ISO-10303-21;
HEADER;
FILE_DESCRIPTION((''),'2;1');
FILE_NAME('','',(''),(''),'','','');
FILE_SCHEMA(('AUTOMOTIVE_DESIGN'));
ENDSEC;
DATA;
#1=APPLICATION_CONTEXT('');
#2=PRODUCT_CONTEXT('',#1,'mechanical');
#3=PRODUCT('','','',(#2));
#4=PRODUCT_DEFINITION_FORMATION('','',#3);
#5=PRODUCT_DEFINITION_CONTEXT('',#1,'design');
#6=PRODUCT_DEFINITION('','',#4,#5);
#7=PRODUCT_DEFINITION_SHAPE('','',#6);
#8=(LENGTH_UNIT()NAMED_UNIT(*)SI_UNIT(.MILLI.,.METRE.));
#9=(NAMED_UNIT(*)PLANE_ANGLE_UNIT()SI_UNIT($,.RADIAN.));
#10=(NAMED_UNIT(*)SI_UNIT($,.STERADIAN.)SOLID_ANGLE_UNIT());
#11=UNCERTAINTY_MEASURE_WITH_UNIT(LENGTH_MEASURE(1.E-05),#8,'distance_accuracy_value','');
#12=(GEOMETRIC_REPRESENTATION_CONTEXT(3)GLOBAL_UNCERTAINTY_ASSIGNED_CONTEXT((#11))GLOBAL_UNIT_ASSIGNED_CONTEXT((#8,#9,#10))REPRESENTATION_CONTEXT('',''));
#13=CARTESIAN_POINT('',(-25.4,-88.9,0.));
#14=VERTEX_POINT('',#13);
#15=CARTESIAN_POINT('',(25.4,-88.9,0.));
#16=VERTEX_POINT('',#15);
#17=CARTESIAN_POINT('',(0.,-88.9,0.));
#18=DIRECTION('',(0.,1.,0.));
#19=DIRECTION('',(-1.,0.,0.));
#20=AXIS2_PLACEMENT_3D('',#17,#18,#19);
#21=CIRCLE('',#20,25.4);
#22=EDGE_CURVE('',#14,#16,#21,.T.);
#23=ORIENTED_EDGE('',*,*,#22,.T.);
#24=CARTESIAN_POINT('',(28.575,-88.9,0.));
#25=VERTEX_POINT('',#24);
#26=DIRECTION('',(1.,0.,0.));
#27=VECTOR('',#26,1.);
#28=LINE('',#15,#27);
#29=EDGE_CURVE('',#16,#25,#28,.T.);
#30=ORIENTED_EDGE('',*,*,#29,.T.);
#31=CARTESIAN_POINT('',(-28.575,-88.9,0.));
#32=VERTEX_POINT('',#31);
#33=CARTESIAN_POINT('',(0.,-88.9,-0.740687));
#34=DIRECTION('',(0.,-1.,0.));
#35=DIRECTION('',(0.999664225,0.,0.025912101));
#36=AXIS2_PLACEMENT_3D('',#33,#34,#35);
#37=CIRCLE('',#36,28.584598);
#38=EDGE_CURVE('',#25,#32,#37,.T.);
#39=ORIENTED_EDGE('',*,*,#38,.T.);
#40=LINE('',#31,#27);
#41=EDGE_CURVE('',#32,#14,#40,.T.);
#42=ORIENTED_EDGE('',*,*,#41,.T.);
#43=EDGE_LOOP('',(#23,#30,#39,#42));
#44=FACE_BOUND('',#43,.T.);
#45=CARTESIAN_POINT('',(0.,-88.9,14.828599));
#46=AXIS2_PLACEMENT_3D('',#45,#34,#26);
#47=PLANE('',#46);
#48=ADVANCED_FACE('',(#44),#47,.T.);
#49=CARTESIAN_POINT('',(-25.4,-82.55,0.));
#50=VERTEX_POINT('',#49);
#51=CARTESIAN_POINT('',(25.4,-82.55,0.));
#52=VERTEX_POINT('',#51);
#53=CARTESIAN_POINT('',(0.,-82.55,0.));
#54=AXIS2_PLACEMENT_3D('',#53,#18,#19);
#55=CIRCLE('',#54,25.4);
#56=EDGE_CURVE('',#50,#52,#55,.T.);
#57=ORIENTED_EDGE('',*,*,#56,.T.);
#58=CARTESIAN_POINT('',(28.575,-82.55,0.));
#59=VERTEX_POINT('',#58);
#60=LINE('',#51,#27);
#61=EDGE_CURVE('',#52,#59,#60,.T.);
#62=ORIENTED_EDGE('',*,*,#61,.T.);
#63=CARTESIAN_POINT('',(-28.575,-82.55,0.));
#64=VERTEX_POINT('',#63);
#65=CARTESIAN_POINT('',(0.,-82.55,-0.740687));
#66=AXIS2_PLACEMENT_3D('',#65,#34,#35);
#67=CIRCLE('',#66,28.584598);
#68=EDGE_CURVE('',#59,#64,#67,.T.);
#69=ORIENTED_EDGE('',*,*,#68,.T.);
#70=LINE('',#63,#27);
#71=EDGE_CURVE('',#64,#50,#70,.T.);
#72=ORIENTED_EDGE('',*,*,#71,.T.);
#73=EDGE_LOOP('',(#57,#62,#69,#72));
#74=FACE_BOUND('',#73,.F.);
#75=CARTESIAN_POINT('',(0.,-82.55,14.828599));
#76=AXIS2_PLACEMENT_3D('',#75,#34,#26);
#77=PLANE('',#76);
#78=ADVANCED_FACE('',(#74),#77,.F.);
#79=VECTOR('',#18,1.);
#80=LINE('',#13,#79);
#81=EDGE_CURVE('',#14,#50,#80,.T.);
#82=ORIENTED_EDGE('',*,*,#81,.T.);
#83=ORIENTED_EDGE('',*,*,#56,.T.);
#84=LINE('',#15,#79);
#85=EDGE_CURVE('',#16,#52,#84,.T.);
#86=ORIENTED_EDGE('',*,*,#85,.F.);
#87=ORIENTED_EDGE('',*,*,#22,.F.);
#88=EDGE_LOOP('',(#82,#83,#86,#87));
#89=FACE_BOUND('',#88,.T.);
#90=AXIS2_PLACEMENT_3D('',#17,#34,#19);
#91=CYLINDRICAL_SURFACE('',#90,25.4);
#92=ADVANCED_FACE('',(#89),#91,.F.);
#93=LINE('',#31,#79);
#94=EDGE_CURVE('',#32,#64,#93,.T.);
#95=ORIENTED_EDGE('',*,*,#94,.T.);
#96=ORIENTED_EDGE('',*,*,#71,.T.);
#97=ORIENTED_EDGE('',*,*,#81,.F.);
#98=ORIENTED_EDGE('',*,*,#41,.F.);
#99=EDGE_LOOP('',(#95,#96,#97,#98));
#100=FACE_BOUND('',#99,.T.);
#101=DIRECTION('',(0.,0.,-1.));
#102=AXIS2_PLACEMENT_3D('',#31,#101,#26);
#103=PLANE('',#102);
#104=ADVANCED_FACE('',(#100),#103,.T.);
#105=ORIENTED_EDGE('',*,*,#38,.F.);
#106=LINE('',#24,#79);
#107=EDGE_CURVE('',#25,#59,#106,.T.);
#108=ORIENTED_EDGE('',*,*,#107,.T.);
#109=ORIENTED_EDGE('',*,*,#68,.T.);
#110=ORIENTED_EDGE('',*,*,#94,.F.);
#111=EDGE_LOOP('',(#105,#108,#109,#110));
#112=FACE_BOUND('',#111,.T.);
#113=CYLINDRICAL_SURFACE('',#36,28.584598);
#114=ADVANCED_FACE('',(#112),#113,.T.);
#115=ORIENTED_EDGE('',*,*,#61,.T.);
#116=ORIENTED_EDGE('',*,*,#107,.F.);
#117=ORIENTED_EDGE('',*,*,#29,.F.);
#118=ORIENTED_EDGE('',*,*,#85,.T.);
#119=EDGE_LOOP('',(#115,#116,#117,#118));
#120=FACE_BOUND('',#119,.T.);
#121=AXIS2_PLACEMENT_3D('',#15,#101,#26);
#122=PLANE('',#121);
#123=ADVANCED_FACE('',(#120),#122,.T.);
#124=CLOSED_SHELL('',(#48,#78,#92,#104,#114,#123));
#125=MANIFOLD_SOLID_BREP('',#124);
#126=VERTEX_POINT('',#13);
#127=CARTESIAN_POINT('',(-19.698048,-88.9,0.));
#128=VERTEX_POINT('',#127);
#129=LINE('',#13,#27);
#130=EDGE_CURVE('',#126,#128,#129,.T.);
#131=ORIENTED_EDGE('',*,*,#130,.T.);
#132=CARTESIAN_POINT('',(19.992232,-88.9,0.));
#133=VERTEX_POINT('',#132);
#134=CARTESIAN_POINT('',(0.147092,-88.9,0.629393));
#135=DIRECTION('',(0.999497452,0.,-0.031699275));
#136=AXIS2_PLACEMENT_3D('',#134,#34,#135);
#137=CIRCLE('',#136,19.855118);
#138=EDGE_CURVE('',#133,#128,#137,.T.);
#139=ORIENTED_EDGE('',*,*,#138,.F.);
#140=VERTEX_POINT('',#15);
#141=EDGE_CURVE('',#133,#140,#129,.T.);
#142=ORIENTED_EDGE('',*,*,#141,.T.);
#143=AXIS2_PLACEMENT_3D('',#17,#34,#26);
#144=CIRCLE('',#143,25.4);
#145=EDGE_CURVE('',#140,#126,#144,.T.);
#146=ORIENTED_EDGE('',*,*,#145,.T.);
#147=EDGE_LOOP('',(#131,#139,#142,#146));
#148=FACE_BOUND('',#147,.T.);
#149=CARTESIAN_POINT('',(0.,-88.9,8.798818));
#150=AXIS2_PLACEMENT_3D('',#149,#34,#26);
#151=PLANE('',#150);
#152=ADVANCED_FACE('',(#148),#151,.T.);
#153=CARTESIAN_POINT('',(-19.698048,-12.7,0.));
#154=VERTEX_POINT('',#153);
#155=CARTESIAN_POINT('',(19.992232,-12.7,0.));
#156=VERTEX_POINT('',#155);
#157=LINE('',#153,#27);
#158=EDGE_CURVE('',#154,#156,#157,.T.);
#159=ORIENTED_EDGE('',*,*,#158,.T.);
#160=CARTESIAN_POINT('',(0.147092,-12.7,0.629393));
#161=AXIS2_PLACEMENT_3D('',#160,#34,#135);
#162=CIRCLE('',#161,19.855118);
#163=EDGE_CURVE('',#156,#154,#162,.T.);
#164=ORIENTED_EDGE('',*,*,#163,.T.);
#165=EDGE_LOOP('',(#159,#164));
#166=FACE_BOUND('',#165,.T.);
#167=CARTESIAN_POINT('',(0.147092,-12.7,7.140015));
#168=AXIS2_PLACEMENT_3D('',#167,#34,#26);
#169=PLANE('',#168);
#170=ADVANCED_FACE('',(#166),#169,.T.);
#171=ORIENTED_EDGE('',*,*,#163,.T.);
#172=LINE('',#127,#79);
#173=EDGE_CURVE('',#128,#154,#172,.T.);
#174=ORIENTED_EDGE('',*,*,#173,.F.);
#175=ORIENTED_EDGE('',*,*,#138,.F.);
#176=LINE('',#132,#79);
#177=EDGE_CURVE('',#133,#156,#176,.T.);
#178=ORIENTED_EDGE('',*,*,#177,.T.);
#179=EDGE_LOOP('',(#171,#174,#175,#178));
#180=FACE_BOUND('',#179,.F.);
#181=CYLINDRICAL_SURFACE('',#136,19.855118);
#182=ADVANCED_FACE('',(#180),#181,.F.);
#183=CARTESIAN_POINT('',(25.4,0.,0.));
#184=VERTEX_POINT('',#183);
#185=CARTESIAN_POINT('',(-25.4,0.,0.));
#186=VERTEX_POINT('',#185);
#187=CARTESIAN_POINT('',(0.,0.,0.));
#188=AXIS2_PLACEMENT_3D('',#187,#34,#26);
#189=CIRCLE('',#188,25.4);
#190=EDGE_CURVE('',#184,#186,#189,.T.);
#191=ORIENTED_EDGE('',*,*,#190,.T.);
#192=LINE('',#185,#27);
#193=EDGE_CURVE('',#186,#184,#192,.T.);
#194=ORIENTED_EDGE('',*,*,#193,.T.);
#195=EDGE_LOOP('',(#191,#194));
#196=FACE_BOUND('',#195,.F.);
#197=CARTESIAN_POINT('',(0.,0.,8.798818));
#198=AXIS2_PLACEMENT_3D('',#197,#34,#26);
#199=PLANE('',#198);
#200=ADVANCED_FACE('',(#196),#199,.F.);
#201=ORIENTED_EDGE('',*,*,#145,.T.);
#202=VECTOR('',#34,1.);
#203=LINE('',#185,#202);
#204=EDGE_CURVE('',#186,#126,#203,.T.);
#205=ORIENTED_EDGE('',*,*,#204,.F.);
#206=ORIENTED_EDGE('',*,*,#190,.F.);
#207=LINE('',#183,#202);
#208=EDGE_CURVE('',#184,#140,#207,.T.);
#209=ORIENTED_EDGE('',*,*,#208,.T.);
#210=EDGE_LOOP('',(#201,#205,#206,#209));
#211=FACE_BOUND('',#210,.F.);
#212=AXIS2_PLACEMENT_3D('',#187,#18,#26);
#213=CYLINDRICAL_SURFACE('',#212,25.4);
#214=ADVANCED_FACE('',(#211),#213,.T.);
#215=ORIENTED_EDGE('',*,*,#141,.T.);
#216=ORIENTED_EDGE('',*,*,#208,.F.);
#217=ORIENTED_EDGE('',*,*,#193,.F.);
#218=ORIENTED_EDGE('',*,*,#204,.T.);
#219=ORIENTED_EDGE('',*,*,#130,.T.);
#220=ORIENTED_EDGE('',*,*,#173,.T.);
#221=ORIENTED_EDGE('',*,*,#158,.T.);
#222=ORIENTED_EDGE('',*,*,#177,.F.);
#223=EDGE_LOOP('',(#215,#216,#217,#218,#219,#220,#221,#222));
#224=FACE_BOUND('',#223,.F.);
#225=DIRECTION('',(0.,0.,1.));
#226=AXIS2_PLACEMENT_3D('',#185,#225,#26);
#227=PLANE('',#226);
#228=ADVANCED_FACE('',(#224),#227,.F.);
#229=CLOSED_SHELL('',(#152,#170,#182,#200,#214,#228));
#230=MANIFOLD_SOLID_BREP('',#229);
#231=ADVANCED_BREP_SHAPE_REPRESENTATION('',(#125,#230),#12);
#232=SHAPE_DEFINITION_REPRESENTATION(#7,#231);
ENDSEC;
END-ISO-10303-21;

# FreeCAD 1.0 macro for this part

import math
import FreeCAD as App
import Part
import Sketcher
from FreeCAD import Vector
Q = App.Units.Quantity

doc = App.newDocument("Part")
body = doc.addObject("PartDesign::Body", "Body")

# Sketch on XZ plane
sketch1 = doc.addObject("Sketcher::SketchObject", "Sketch")
body.addObject(sketch1)
sketch1.AttachmentSupport = (doc.XZ_Plane, [""])
sketch1.MapMode = "FlatFace"
sketch1.addGeometry([
    Part.LineSegment(Vector(-25, 0, 0), Vector(25, 0, 0)),
    Part.ArcOfCircle(Part.Circle(Vector(0, 0, 0), Vector(0, 0, 1), 25), math.radians(0), math.radians(180)),
], False)
sketch1.addConstraint([
    Sketcher.Constraint("Coincident", 0, 1, 1, 2),
    Sketcher.Constraint("Coincident", 1, 1, 0, 2),
    Sketcher.Constraint("Horizontal", 0),
    Sketcher.Constraint("Coincident", 1, 3, -1, 1),
    Sketcher.Constraint("PointOnObject", 0, 1, -1),
    Sketcher.Constraint("Radius", 1, Q("1 in")),
])
pad1 = doc.addObject("PartDesign::Pad", "Pad")
body.addObject(pad1)
pad1.Profile = sketch1
pad1.Length = Q("3.5 in")

# Sketch on XZ plane
sketch2 = doc.addObject("Sketcher::SketchObject", "Sketch001")
body.addObject(sketch2)
sketch2.AttachmentSupport = (doc.XZ_Plane, [""])
sketch2.MapMode = "FlatFace"
sketch2.AttachmentOffset = App.Placement(Vector(0, 0, 3.5 * 25.4), App.Rotation())
sketch2.addGeometry([
    Part.LineSegment(Vector(-20, 0, 0), Vector(20, 0, 0)),
    Part.ArcOfCircle(Part.Circle(Vector(0, 1, 0), Vector(0, 0, 1), 20), math.radians(-2), math.radians(182)),
], False)
sketch2.addConstraint([
    Sketcher.Constraint("Coincident", 0, 1, 1, 2),
    Sketcher.Constraint("Coincident", 1, 1, 0, 2),
    Sketcher.Constraint("Horizontal", 0),
    Sketcher.Constraint("PointOnObject", 0, 1, -1),
    Sketcher.Constraint("Radius", 1, Q("19.855118 mm")),
    Sketcher.Constraint("DistanceX", 0, 1, 0, 2, Q("39.69028 mm")),
    Sketcher.Constraint("DistanceX", 0, 1, -1, 1, Q("19.698048 mm")),
])
pocket1 = doc.addObject("PartDesign::Pocket", "Pocket")
body.addObject(pocket1)
pocket1.Profile = sketch2
pocket1.Length = Q("3 in")
body2 = doc.addObject("PartDesign::Body", "Body001")

# Sketch on XZ plane
sketch3 = doc.addObject("Sketcher::SketchObject", "Sketch002")
body2.addObject(sketch3)
sketch3.AttachmentSupport = (doc.getObject("XZ_Plane001"), [""])
sketch3.MapMode = "FlatFace"
sketch3.AttachmentOffset = App.Placement(Vector(0, 0, 3.5 * 25.4), App.Rotation())
sketch3.addGeometry([
    Part.ArcOfCircle(Part.Circle(Vector(0, 0, 0), Vector(0, 0, 1), 25.4), math.radians(0), math.radians(180)),
    Part.LineSegment(Vector(25.4, 0, 0), Vector(28.6, 0, 0)),
    Part.ArcOfCircle(Part.Circle(Vector(0, -0.7, 0), Vector(0, 0, 1), 28.6), math.radians(1), math.radians(179)),
    Part.LineSegment(Vector(-28.6, 0, 0), Vector(-25.4, 0, 0)),
], False)
sketch3.addConstraint([
    Sketcher.Constraint("Coincident", 0, 1, 1, 1),
    Sketcher.Constraint("Coincident", 1, 2, 2, 1),
    Sketcher.Constraint("Coincident", 2, 2, 3, 1),
    Sketcher.Constraint("Coincident", 3, 2, 0, 2),
    Sketcher.Constraint("Horizontal", 1),
    Sketcher.Constraint("Horizontal", 3),
    Sketcher.Constraint("Coincident", 0, 3, -1, 1),
    Sketcher.Constraint("Symmetric", 1, 2, 2, 2, -1, 1),
    Sketcher.Constraint("PointOnObject", 2, 3, -2),
    Sketcher.Constraint("Radius", 0, Q("1 in")),
    Sketcher.Constraint("DistanceX", 1, 1, 1, 2, Q("0.125 in")),
    Sketcher.Constraint("Radius", 2, Q("28.584598 mm")),
])
pad2 = doc.addObject("PartDesign::Pad", "Pad001")
body2.addObject(pad2)
pad2.Profile = sketch3
pad2.Length = Q("0.25 in")
pad2.Reversed = True

doc.recompute()
